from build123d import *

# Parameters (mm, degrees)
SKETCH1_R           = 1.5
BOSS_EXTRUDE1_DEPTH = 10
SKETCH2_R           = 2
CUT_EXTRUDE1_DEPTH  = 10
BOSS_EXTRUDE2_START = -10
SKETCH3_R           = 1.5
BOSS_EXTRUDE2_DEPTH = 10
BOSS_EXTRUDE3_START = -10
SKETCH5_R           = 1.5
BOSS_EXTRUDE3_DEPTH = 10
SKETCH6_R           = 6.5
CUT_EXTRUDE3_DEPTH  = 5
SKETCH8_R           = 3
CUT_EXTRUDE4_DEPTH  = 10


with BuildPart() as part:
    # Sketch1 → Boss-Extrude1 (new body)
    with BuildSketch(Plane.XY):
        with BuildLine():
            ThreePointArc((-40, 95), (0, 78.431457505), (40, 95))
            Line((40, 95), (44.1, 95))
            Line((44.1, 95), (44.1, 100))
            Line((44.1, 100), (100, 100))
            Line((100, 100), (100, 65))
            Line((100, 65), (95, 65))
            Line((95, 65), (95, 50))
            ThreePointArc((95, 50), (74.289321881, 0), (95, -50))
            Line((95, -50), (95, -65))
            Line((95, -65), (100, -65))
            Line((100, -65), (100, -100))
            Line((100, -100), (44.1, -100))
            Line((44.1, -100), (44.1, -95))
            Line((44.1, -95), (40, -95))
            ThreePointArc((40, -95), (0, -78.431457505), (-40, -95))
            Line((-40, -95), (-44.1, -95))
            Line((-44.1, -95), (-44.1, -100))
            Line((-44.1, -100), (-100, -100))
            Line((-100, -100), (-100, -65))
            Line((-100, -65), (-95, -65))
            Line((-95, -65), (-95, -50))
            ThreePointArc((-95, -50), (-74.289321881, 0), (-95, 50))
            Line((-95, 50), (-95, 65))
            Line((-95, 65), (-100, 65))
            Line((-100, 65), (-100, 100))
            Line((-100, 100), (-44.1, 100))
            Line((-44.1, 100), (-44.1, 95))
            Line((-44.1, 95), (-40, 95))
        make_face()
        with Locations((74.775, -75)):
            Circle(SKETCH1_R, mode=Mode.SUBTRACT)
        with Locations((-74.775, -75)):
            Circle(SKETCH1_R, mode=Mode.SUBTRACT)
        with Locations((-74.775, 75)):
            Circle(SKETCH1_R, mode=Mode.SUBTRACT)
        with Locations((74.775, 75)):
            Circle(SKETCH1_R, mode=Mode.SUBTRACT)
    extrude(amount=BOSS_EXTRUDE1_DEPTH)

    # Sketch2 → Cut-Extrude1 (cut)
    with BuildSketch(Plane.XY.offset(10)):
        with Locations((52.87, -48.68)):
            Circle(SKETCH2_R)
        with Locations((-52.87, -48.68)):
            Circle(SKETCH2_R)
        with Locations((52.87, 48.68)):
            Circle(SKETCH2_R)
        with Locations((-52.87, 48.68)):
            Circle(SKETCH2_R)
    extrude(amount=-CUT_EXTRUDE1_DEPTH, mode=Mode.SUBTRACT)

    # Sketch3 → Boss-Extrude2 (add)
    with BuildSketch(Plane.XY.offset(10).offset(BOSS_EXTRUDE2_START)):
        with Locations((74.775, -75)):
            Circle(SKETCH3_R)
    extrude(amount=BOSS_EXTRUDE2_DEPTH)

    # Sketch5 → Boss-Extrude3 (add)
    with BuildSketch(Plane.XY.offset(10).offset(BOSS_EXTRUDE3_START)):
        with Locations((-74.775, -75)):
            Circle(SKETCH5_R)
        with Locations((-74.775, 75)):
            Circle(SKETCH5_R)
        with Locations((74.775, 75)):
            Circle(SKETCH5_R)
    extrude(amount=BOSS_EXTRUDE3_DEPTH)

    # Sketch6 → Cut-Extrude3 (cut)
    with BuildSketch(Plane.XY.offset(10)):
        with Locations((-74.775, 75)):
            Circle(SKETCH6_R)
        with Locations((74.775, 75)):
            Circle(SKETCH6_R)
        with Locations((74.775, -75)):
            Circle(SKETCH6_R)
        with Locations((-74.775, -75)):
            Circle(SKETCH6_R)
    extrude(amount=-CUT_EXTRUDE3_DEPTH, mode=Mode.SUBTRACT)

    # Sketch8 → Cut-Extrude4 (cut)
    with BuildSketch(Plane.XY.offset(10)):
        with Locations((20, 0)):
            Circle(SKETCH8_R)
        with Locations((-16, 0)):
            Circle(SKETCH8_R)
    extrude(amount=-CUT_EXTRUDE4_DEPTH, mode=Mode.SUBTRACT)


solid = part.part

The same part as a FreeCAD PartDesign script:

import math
import FreeCAD as App
import Part
import Sketcher

V = App.Vector

doc = App.newDocument("Part")
body = doc.addObject("PartDesign::Body", "Body")

sketch1 = doc.addObject("Sketcher::SketchObject", "Sketch")
body.addObject(sketch1)
sketch1.AttachmentSupport = (doc.XY_Plane, [""])
sketch1.MapMode = "FlatFace"
sketch1.addGeometry([
    Part.ArcOfCircle(Part.Circle(V(0, 135, 0), V(0, 0, 1), 56.6), math.radians(-135), math.radians(-45)),
    Part.LineSegment(V(-40, 95, 0), V(-44.1, 95, 0)),
    Part.LineSegment(V(-44.1, 95, 0), V(-44.1, 100, 0)),
    Part.LineSegment(V(-44.1, 100, 0), V(-100, 100, 0)),
    Part.LineSegment(V(-100, 100, 0), V(-100, 65, 0)),
    Part.LineSegment(V(-100, 65, 0), V(-95, 65, 0)),
    Part.LineSegment(V(-95, 65, 0), V(-95, 50, 0)),
    Part.ArcOfCircle(Part.Circle(V(-145, 0, 0), V(0, 0, 1), 70.7), math.radians(-45), math.radians(45)),
    Part.LineSegment(V(-95, -50, 0), V(-95, -65, 0)),
    Part.LineSegment(V(-95, -65, 0), V(-100, -65, 0)),
    Part.LineSegment(V(-100, -65, 0), V(-100, -100, 0)),
    Part.LineSegment(V(-100, -100, 0), V(-44.1, -100, 0)),
    Part.LineSegment(V(-44.1, -100, 0), V(-44.1, -95, 0)),
    Part.LineSegment(V(-44.1, -95, 0), V(-40, -95, 0)),
    Part.ArcOfCircle(Part.Circle(V(0, -135, 0), V(0, 0, 1), 56.6), math.radians(45), math.radians(135)),
    Part.LineSegment(V(40, -95, 0), V(44.1, -95, 0)),
    Part.LineSegment(V(44.1, -95, 0), V(44.1, -100, 0)),
    Part.LineSegment(V(44.1, -100, 0), V(100, -100, 0)),
    Part.LineSegment(V(100, -100, 0), V(100, -65, 0)),
    Part.LineSegment(V(100, -65, 0), V(95, -65, 0)),
    Part.LineSegment(V(95, -65, 0), V(95, -50, 0)),
    Part.ArcOfCircle(Part.Circle(V(145, 0, 0), V(0, 0, 1), 70.7), math.radians(135), math.radians(225)),
    Part.LineSegment(V(95, 50, 0), V(95, 65, 0)),
    Part.LineSegment(V(95, 65, 0), V(100, 65, 0)),
    Part.LineSegment(V(100, 65, 0), V(100, 100, 0)),
    Part.LineSegment(V(100, 100, 0), V(44.1, 100, 0)),
    Part.LineSegment(V(44.1, 100, 0), V(44.1, 95, 0)),
    Part.LineSegment(V(44.1, 95, 0), V(40, 95, 0)),
    Part.Circle(V(74.8, -75, 0), V(0, 0, 1), 1.5),
    Part.Circle(V(-74.8, -75, 0), V(0, 0, 1), 1.5),
    Part.Circle(V(74.8, 75, 0), V(0, 0, 1), 1.5),
    Part.Circle(V(-74.8, 75, 0), V(0, 0, 1), 1.5),
], False)
sketch1.addConstraint([
    Sketcher.Constraint("Coincident", 0, 1, 1, 1),
    Sketcher.Constraint("Coincident", 1, 2, 2, 1),
    Sketcher.Constraint("Coincident", 2, 2, 3, 1),
    Sketcher.Constraint("Coincident", 3, 2, 4, 1),
    Sketcher.Constraint("Coincident", 4, 2, 5, 1),
    Sketcher.Constraint("Coincident", 5, 2, 6, 1),
    Sketcher.Constraint("Coincident", 6, 2, 7, 2),
    Sketcher.Constraint("Coincident", 7, 1, 8, 1),
    Sketcher.Constraint("Coincident", 8, 2, 9, 1),
    Sketcher.Constraint("Coincident", 9, 2, 10, 1),
    Sketcher.Constraint("Coincident", 10, 2, 11, 1),
    Sketcher.Constraint("Coincident", 11, 2, 12, 1),
    Sketcher.Constraint("Coincident", 12, 2, 13, 1),
    Sketcher.Constraint("Coincident", 13, 2, 14, 2),
    Sketcher.Constraint("Coincident", 14, 1, 15, 1),
    Sketcher.Constraint("Coincident", 15, 2, 16, 1),
    Sketcher.Constraint("Coincident", 16, 2, 17, 1),
    Sketcher.Constraint("Coincident", 17, 2, 18, 1),
    Sketcher.Constraint("Coincident", 18, 2, 19, 1),
    Sketcher.Constraint("Coincident", 19, 2, 20, 1),
    Sketcher.Constraint("Coincident", 20, 2, 21, 2),
    Sketcher.Constraint("Coincident", 21, 1, 22, 1),
    Sketcher.Constraint("Coincident", 22, 2, 23, 1),
    Sketcher.Constraint("Coincident", 23, 2, 24, 1),
    Sketcher.Constraint("Coincident", 24, 2, 25, 1),
    Sketcher.Constraint("Coincident", 25, 2, 26, 1),
    Sketcher.Constraint("Coincident", 26, 2, 27, 1),
    Sketcher.Constraint("Coincident", 27, 2, 0, 2),
    Sketcher.Constraint("Horizontal", 1),
    Sketcher.Constraint("Vertical", 2),
    Sketcher.Constraint("Horizontal", 3),
    Sketcher.Constraint("Vertical", 4),
    Sketcher.Constraint("Horizontal", 5),
    Sketcher.Constraint("Vertical", 6),
    Sketcher.Constraint("Vertical", 8),
    Sketcher.Constraint("Horizontal", 9),
    Sketcher.Constraint("Vertical", 10),
    Sketcher.Constraint("Horizontal", 11),
    Sketcher.Constraint("Vertical", 12),
    Sketcher.Constraint("Horizontal", 13),
    Sketcher.Constraint("Horizontal", 15),
    Sketcher.Constraint("Vertical", 16),
    Sketcher.Constraint("Horizontal", 17),
    Sketcher.Constraint("Vertical", 18),
    Sketcher.Constraint("Horizontal", 19),
    Sketcher.Constraint("Vertical", 20),
    Sketcher.Constraint("Vertical", 22),
    Sketcher.Constraint("Horizontal", 23),
    Sketcher.Constraint("Vertical", 24),
    Sketcher.Constraint("Horizontal", 25),
    Sketcher.Constraint("Vertical", 26),
    Sketcher.Constraint("Horizontal", 27),
    Sketcher.Constraint("Equal", 0, 14),
    Sketcher.Constraint("Equal", 7, 21),
    Sketcher.Constraint("Equal", 28, 29),
    Sketcher.Constraint("Equal", 29, 30),
    Sketcher.Constraint("Equal", 30, 31),
    Sketcher.Constraint("Symmetric", 0, 3, 14, 3, -1, 1),
    Sketcher.Constraint("Symmetric", 7, 3, 21, 3, -1, 1),
    Sketcher.Constraint("Symmetric", 29, 3, 30, 3, -1, 1),
    Sketcher.Constraint("Symmetric", 28, 3, 31, 3, -1, 1),
    Sketcher.Constraint("Symmetric", 1, 2, 15, 2, -1, 1),
    Sketcher.Constraint("Symmetric", 3, 2, 17, 2, -1, 1),
    Sketcher.Constraint("Symmetric", 5, 2, 19, 2, -1, 1),
    Sketcher.Constraint("Symmetric", 8, 2, 22, 2, -1, 1),
    Sketcher.Constraint("Symmetric", 10, 2, 24, 2, -1, 1),
    Sketcher.Constraint("Symmetric", 12, 2, 26, 2, -1, 1),
    Sketcher.Constraint("Symmetric", 28, 3, 29, 3, -2),
    Sketcher.Constraint("Symmetric", 13, 2, 14, 1, -2),
    Sketcher.Constraint("Symmetric", 11, 2, 16, 2, -2),
    Sketcher.Constraint("Symmetric", 9, 2, 18, 2, -2),
    Sketcher.Constraint("Symmetric", 7, 1, 20, 2, -2),
    Sketcher.Constraint("Equal", 23, 2),
    Sketcher.Constraint("Diameter", 28, 3.0),
    Sketcher.Constraint("DistanceX", 5, 1, 5, 2, 5.0),
    Sketcher.Constraint("DistanceY", 4, 2, 4, 1, 35.0),
    Sketcher.Constraint("DistanceY", 6, 2, 6, 1, 15.0),
    Sketcher.Constraint("DistanceX", 1, 2, 1, 1, 4.1),
    Sketcher.Constraint("DistanceX", 3, 2, 3, 1, 55.9),
    Sketcher.Constraint("DistanceY", -1, 1, 0, 3, 135.0),
    Sketcher.Constraint("DistanceX", 7, 3, -1, 1, 145.0),
    Sketcher.Constraint("DistanceY", 28, 3, -1, 1, 75.0),
    Sketcher.Constraint("DistanceX", 0, 1, -1, 1, 40.0),
    Sketcher.Constraint("DistanceY", -1, 1, 0, 1, 95.0),
    Sketcher.Constraint("DistanceX", 29, 3, 28, 3, 149.55),
])
pad1 = doc.addObject("PartDesign::Pad", "Pad")
body.addObject(pad1)
pad1.Profile = sketch1
pad1.Length = 10

sketch2 = doc.addObject("Sketcher::SketchObject", "Sketch001")
body.addObject(sketch2)
sketch2.AttachmentSupport = (doc.XY_Plane, [""])
sketch2.MapMode = "FlatFace"
sketch2.AttachmentOffset = App.Placement(V(0, 0, 10), App.Rotation())
sketch2.addGeometry([
    Part.Circle(V(52.9, -48.7, 0), V(0, 0, 1), 2),
    Part.Circle(V(-52.9, -48.7, 0), V(0, 0, 1), 2),
    Part.Circle(V(52.9, 48.7, 0), V(0, 0, 1), 2),
    Part.Circle(V(-52.9, 48.7, 0), V(0, 0, 1), 2),
], False)
sketch2.addConstraint([
    Sketcher.Constraint("Equal", 0, 1),
    Sketcher.Constraint("Equal", 1, 2),
    Sketcher.Constraint("Equal", 2, 3),
    Sketcher.Constraint("Symmetric", 1, 3, 2, 3, -1, 1),
    Sketcher.Constraint("Symmetric", 0, 3, 3, 3, -1, 1),
    Sketcher.Constraint("Symmetric", 0, 3, 1, 3, -2),
    Sketcher.Constraint("Diameter", 0, 4.0),
    Sketcher.Constraint("DistanceX", -1, 1, 0, 3, 52.87),
    Sketcher.Constraint("DistanceY", 0, 3, -1, 1, 48.68),
])
pocket1 = doc.addObject("PartDesign::Pocket", "Pocket")
body.addObject(pocket1)
pocket1.Profile = sketch2
pocket1.Length = 10

sketch3 = doc.addObject("Sketcher::SketchObject", "Sketch002")
body.addObject(sketch3)
sketch3.AttachmentSupport = (doc.XY_Plane, [""])
sketch3.MapMode = "FlatFace"
sketch3.addGeometry(Part.Circle(V(74.8, -75, 0), V(0, 0, 1), 1.5), False)
sketch3.addConstraint([
    Sketcher.Constraint("Diameter", 0, 3.0),
    Sketcher.Constraint("DistanceY", 0, 3, -1, 1, 75.0),
    Sketcher.Constraint("DistanceX", -1, 1, 0, 3, 74.775),
])
pad2 = doc.addObject("PartDesign::Pad", "Pad001")
body.addObject(pad2)
pad2.Profile = sketch3
pad2.Length = 10

sketch4 = doc.addObject("Sketcher::SketchObject", "Sketch003")
body.addObject(sketch4)
sketch4.AttachmentSupport = (doc.XY_Plane, [""])
sketch4.MapMode = "FlatFace"
sketch4.addGeometry([
    Part.Circle(V(-74.8, -75, 0), V(0, 0, 1), 1.5),
    Part.Circle(V(-74.8, 75, 0), V(0, 0, 1), 1.5),
    Part.Circle(V(74.8, 75, 0), V(0, 0, 1), 1.5),
], False)
sketch4.addConstraint([
    Sketcher.Constraint("Equal", 0, 1),
    Sketcher.Constraint("Equal", 1, 2),
    Sketcher.Constraint("Symmetric", 0, 3, 2, 3, -1, 1),
    Sketcher.Constraint("Symmetric", 1, 3, 2, 3, -2),
    Sketcher.Constraint("Diameter", 0, 3.0),
    Sketcher.Constraint("DistanceY", 0, 3, -1, 1, 75.0),
    Sketcher.Constraint("DistanceX", 1, 3, 2, 3, 149.55),
])
pad3 = doc.addObject("PartDesign::Pad", "Pad002")
body.addObject(pad3)
pad3.Profile = sketch4
pad3.Length = 10

sketch5 = doc.addObject("Sketcher::SketchObject", "Sketch004")
body.addObject(sketch5)
sketch5.AttachmentSupport = (doc.XY_Plane, [""])
sketch5.MapMode = "FlatFace"
sketch5.AttachmentOffset = App.Placement(V(0, 0, 10), App.Rotation())
sketch5.addGeometry([
    Part.Circle(V(-75, 75, 0), V(0, 0, 1), 6),
    Part.Circle(V(75, 75, 0), V(0, 0, 1), 6),
    Part.Circle(V(75, -75, 0), V(0, 0, 1), 6),
    Part.Circle(V(-75, -75, 0), V(0, 0, 1), 6),
], False)
sketch5.addConstraint([
    Sketcher.Constraint("Equal", 0, 1),
    Sketcher.Constraint("Equal", 1, 2),
    Sketcher.Constraint("Equal", 2, 3),
    Sketcher.Constraint("Symmetric", 0, 3, 2, 3, -1, 1),
    Sketcher.Constraint("Symmetric", 1, 3, 3, 3, -1, 1),
    Sketcher.Constraint("Symmetric", 0, 3, 1, 3, -2),
    Sketcher.Constraint("Diameter", 0, 13.0),
    Sketcher.Constraint("DistanceY", -1, 1, 0, 3, 75.0),
    Sketcher.Constraint("DistanceX", 0, 3, 1, 3, 149.55),
])
pocket2 = doc.addObject("PartDesign::Pocket", "Pocket001")
body.addObject(pocket2)
pocket2.Profile = sketch5
pocket2.Length = 5

sketch6 = doc.addObject("Sketcher::SketchObject", "Sketch005")
body.addObject(sketch6)
sketch6.AttachmentSupport = (doc.XY_Plane, [""])
sketch6.MapMode = "FlatFace"
sketch6.AttachmentOffset = App.Placement(V(0, 0, 10), App.Rotation())
sketch6.addGeometry([
    Part.Circle(V(20, 0, 0), V(0, 0, 1), 3),
    Part.Circle(V(-16, 0, 0), V(0, 0, 1), 3),
], False)
sketch6.addConstraint([
    Sketcher.Constraint("Equal", 0, 1),
    Sketcher.Constraint("PointOnObject", 0, 3, -1),
    Sketcher.Constraint("PointOnObject", 1, 3, -1),
    Sketcher.Constraint("Diameter", 0, 6.0),
    Sketcher.Constraint("DistanceX", -1, 1, 0, 3, 20.0),
    Sketcher.Constraint("DistanceX", 1, 3, -1, 1, 16.0),
])
pocket3 = doc.addObject("PartDesign::Pocket", "Pocket002")
body.addObject(pocket3)
pocket3.Profile = sketch6
pocket3.Length = 10

doc.recompute()
